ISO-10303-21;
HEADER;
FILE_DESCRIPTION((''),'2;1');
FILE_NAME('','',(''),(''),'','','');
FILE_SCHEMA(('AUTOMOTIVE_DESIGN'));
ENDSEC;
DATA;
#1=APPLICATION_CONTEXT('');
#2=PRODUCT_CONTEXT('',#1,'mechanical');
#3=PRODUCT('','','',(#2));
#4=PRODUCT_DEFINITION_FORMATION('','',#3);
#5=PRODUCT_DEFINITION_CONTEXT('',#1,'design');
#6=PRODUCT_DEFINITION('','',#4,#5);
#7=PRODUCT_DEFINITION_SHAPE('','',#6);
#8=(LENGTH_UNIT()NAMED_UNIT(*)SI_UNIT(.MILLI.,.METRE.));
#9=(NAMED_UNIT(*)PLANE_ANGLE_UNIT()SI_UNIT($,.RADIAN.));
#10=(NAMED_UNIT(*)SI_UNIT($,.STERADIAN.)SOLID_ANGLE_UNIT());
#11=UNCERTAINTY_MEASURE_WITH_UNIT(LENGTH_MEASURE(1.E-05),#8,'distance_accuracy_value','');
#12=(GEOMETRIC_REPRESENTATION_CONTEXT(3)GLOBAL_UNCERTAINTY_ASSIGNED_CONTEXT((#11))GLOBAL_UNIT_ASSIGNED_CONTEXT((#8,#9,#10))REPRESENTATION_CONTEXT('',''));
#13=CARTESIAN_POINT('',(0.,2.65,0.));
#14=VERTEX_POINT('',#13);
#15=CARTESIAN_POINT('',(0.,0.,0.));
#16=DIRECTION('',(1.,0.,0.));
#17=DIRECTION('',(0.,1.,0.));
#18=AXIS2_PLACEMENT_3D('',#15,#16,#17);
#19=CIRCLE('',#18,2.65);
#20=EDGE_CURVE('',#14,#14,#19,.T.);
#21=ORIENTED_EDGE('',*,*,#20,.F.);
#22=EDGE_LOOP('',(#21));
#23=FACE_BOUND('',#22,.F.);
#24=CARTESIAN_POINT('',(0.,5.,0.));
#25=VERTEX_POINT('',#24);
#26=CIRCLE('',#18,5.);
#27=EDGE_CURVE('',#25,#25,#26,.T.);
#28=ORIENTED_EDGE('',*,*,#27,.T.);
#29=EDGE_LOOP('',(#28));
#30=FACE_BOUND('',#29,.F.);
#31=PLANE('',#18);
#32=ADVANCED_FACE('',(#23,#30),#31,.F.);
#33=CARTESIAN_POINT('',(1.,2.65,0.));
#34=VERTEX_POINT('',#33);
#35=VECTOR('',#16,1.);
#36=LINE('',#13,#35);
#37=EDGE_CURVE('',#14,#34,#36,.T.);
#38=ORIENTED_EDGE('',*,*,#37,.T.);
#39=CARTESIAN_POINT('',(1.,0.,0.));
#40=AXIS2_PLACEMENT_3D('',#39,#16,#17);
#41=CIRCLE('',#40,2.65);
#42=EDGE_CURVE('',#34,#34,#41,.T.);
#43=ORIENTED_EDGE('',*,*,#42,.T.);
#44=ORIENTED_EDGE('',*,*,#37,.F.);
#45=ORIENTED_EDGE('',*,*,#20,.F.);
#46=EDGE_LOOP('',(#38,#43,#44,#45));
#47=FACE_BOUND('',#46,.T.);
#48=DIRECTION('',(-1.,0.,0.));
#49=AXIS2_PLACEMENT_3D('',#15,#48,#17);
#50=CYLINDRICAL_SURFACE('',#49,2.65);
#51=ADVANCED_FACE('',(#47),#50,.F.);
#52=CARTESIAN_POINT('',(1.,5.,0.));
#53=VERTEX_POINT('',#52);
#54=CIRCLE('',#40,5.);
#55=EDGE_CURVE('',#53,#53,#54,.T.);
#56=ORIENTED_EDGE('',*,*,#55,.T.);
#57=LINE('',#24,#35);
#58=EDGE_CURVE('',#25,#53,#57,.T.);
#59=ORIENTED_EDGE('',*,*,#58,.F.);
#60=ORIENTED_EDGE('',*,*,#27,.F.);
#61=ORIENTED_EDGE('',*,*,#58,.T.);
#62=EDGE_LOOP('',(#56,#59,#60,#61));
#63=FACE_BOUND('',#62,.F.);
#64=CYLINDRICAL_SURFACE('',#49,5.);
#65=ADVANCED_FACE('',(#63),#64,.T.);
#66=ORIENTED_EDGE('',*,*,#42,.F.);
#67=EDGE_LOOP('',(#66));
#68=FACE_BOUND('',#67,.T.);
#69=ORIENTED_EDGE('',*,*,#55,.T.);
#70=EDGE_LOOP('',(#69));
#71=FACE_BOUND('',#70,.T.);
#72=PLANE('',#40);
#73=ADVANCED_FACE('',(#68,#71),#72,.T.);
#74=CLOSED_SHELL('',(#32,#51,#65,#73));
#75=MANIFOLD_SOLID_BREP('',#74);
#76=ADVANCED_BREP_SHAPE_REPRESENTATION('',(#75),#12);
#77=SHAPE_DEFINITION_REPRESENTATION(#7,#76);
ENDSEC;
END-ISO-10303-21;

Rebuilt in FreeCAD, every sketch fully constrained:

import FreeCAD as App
import Part
import Sketcher
from FreeCAD import Vector
Q = App.Units.Quantity

doc = App.newDocument("Part")
body = doc.addObject("PartDesign::Body", "Body")

# Sketch on YZ plane
sketch1 = body.newObject("Sketcher::SketchObject", "Sketch")
sketch1.AttachmentSupport = (doc.getObject("YZ_Plane"), [""])
sketch1.MapMode = "FlatFace"
sketch1.addGeometry([
    Part.Circle(Vector(0, 0, 0), Vector(0, 0, 1), 5),
    Part.Circle(Vector(0, 0, 0), Vector(0, 0, 1), 2.6),
], False)
sketch1.addConstraint([
    Sketcher.Constraint("Coincident", 0, 3, -1, 1),
    Sketcher.Constraint("Coincident", 1, 3, -1, 1),
    Sketcher.Constraint("Diameter", 0, Q("10 mm")),
    Sketcher.Constraint("Diameter", 1, Q("5.3 mm")),
])
pad1 = body.newObject("PartDesign::Pad", "Pad")
pad1.Profile = sketch1
pad1.Length = 1

doc.recompute()
